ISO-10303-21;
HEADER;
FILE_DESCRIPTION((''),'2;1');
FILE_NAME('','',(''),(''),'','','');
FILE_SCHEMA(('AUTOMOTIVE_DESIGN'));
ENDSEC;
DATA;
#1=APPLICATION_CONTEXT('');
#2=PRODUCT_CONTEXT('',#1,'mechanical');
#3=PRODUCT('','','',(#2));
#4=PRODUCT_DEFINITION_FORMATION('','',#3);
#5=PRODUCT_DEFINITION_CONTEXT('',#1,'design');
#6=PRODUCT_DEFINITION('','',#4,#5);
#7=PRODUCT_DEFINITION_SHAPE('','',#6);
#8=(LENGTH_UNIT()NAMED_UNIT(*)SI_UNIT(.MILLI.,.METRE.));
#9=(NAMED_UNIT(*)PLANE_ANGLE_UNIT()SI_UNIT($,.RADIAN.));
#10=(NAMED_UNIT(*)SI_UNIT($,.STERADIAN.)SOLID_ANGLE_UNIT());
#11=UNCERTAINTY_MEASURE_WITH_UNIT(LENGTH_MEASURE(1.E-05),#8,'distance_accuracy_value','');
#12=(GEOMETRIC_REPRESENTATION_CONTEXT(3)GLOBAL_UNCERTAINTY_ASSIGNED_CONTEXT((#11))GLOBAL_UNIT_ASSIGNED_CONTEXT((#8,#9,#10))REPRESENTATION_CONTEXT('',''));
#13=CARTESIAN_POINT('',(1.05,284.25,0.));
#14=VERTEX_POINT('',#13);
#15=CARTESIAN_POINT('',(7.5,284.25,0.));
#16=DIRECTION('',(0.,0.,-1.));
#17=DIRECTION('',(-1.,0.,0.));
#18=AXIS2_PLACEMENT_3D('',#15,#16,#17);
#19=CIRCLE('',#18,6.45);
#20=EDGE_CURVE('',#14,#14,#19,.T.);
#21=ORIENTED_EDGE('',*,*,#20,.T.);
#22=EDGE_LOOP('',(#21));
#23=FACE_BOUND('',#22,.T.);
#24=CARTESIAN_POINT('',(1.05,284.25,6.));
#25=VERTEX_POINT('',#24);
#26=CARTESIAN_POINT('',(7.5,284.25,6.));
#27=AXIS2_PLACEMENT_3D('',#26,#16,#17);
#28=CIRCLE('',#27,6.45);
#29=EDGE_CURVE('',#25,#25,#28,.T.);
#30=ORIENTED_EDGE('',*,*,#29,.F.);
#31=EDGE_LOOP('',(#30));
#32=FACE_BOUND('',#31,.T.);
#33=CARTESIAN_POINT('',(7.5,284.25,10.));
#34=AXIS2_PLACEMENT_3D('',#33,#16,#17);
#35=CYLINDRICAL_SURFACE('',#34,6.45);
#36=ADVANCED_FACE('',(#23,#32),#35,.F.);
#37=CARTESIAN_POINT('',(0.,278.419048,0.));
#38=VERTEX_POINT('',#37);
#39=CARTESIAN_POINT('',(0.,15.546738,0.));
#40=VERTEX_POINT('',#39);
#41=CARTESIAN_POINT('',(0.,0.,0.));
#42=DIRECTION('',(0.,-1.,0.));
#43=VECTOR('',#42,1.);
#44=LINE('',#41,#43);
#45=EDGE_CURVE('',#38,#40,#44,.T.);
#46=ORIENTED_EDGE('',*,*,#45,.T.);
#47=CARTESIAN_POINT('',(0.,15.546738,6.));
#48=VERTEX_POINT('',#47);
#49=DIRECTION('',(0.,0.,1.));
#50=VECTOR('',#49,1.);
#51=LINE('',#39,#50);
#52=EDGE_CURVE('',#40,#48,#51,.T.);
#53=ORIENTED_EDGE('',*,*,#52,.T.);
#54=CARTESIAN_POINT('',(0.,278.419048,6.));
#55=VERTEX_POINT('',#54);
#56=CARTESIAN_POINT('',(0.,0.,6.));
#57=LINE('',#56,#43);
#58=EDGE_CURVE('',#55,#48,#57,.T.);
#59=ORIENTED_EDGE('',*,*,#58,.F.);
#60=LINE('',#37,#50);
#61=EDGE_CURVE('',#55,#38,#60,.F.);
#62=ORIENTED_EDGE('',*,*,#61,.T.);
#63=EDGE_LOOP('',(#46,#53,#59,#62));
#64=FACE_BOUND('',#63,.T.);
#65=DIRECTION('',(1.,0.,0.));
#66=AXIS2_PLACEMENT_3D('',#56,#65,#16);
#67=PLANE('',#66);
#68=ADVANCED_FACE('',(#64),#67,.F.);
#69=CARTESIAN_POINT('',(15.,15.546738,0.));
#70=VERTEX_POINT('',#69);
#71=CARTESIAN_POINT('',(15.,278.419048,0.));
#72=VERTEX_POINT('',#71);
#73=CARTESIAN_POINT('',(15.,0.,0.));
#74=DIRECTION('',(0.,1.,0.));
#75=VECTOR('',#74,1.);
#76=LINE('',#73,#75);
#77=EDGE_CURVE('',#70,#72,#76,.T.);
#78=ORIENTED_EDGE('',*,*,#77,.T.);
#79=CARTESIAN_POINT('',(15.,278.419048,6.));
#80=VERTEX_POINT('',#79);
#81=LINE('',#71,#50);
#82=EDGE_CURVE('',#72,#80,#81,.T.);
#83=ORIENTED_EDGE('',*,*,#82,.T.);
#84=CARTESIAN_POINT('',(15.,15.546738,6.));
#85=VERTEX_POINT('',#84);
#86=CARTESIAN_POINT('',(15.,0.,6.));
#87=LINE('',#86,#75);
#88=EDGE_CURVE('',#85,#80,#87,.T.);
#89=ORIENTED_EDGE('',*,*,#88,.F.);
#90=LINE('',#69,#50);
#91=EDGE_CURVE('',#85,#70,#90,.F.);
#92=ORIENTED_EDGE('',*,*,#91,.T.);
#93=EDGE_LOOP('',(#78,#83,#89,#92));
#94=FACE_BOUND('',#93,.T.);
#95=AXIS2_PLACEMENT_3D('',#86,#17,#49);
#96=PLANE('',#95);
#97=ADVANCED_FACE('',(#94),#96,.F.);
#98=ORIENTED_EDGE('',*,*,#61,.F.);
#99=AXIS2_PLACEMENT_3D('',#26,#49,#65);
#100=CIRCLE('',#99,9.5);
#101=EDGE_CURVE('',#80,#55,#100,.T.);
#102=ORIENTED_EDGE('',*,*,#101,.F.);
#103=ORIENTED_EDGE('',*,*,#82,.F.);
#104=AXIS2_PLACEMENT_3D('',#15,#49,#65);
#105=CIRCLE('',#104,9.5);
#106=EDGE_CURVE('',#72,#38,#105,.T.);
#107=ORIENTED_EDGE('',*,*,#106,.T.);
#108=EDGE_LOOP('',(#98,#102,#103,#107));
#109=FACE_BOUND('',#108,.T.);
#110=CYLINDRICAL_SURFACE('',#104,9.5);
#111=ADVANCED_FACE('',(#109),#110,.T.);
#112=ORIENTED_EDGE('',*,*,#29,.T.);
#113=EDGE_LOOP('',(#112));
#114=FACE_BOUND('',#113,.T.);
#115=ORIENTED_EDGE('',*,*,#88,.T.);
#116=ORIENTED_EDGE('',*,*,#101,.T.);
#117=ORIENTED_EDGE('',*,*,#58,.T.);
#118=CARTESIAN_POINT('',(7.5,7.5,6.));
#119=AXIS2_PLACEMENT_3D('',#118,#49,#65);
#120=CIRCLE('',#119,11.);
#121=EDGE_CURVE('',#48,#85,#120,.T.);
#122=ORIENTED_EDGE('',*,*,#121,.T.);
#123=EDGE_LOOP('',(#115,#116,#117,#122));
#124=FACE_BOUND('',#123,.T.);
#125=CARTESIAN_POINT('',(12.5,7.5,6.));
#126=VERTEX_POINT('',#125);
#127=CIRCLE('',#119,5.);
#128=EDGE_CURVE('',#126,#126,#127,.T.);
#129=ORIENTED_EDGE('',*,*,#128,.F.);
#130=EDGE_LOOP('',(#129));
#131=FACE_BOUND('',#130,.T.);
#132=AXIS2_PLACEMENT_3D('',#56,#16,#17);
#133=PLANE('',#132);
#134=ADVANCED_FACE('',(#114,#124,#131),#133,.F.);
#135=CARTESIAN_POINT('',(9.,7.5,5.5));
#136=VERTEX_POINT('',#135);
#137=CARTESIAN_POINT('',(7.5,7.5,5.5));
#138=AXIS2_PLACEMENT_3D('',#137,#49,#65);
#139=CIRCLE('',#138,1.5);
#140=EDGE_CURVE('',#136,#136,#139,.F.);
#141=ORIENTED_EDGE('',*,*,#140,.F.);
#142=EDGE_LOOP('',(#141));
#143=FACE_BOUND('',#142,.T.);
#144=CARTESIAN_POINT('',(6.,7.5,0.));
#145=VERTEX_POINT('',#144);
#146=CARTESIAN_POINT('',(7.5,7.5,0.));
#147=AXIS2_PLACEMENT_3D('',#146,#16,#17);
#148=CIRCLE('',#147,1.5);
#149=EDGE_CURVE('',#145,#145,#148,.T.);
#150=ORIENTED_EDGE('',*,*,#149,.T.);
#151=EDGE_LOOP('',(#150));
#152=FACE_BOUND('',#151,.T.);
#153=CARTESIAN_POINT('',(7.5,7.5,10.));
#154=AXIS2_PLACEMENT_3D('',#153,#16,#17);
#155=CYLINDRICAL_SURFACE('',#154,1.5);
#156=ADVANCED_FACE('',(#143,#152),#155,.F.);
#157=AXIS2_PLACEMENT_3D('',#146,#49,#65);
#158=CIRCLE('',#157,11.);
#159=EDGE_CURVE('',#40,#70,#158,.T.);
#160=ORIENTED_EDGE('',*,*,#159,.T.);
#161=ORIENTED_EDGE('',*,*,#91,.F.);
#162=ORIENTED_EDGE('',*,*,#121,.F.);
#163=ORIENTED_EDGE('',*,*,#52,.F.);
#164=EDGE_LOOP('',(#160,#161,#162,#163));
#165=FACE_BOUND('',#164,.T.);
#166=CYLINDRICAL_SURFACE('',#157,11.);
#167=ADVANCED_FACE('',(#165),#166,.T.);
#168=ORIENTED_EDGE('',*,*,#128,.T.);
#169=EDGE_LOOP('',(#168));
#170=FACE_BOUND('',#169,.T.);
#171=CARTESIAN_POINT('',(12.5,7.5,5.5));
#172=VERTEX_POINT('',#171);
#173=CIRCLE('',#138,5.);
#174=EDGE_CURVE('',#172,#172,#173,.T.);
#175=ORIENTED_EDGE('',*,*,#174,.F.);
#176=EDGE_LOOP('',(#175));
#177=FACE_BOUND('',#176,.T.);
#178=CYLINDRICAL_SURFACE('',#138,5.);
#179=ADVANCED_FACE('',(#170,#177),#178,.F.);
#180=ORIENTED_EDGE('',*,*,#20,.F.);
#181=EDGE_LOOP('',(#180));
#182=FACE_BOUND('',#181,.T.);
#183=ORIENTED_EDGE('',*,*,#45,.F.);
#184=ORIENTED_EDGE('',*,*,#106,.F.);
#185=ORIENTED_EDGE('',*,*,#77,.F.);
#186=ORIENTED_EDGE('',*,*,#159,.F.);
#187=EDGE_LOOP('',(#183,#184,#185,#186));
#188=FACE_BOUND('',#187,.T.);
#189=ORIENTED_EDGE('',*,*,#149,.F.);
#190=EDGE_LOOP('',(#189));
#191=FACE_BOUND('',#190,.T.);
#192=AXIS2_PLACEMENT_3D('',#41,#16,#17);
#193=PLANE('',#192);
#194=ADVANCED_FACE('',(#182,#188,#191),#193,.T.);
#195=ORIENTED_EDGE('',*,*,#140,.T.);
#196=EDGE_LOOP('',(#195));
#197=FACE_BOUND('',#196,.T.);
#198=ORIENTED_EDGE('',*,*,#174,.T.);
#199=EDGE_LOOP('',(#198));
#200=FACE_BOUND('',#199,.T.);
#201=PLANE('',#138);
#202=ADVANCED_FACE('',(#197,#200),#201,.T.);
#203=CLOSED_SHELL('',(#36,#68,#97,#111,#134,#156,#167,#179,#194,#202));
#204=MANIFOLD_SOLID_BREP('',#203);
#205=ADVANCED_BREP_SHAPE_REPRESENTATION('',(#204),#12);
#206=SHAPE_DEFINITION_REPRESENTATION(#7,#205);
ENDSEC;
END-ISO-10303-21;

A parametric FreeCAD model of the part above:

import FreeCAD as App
import Part
import Sketcher

V = App.Vector
Q = App.Units.Quantity

doc = App.newDocument("Part")
body = doc.addObject("PartDesign::Body", "Body")

# Sketch on XY plane
sketch1 = body.newObject("Sketcher::SketchObject", "Sketch")
sketch1.AttachmentSupport = (doc.getObject("XY_Plane"), [""])
sketch1.MapMode = "FlatFace"
sketch1.addGeometry([
    Part.LineSegment(V(0, 290, 0), V(0, 0, 0)),
    Part.LineSegment(V(0, 0, 0), V(15, 0, 0)),
    Part.LineSegment(V(15, 0, 0), V(15, 290, 0)),
    Part.LineSegment(V(15, 290, 0), V(0, 290, 0)),
], False)
sketch1.addConstraint([
    Sketcher.Constraint("Coincident", 0, 2, 1, 1),
    Sketcher.Constraint("Coincident", 1, 2, 2, 1),
    Sketcher.Constraint("Coincident", 2, 2, 3, 1),
    Sketcher.Constraint("Coincident", 3, 2, 0, 1),
    Sketcher.Constraint("Vertical", 0),
    Sketcher.Constraint("Horizontal", 1),
    Sketcher.Constraint("Vertical", 2),
    Sketcher.Constraint("Horizontal", 3),
    Sketcher.Constraint("Coincident", 0, 2, -1, 1),
    Sketcher.Constraint("DistanceX", 1, 1, 1, 2, Q("15 mm")),
    Sketcher.Constraint("DistanceY", 0, 2, 0, 1, Q("290 mm")),
])
pad1 = body.newObject("PartDesign::Pad", "Pad")
pad1.Profile = sketch1
pad1.Length = 6

# Sketch on XY plane
sketch2 = body.newObject("Sketcher::SketchObject", "Sketch001")
sketch2.AttachmentSupport = (doc.getObject("XY_Plane"), [""])
sketch2.MapMode = "FlatFace"
sketch2.AttachmentOffset = App.Placement(V(0, 0, 6), App.Rotation())
sketch2.addGeometry([
    Part.Circle(V(8, 8, 0), V(0, 0, 1), 11),
    Part.Circle(V(8, 284, 0), V(0, 0, 1), 10),
], False)
sketch2.addConstraint([
    Sketcher.Constraint("Vertical", 0, 3, 1, 3),
    Sketcher.Constraint("Diameter", 0, Q("22 mm")),
    Sketcher.Constraint("Diameter", 1, Q("19 mm")),
    Sketcher.Constraint("DistanceX", -1, 1, 0, 3, Q("7.5 mm")),
    Sketcher.Constraint("DistanceY", -1, 1, 0, 3, Q("7.5 mm")),
    Sketcher.Constraint("DistanceY", -1, 1, 1, 3, Q("284.25 mm")),
])
pad2 = body.newObject("PartDesign::Pad", "Pad001")
pad2.Profile = sketch2
pad2.Length = 6
pad2.Reversed = True

# Sketch on XY plane
sketch3 = body.newObject("Sketcher::SketchObject", "Sketch002")
sketch3.AttachmentSupport = (doc.getObject("XY_Plane"), [""])
sketch3.MapMode = "FlatFace"
sketch3.addGeometry([
    Part.Circle(V(7.5, 7.5, 0), V(0, 0, 1), 1.5),
    Part.Circle(V(7.5, 284.2, 0), V(0, 0, 1), 6.5),
], False)
sketch3.addConstraint([
    Sketcher.Constraint("Vertical", 0, 3, 1, 3),
    Sketcher.Constraint("Diameter", 0, Q("3 mm")),
    Sketcher.Constraint("Diameter", 1, Q("12.9 mm")),
    Sketcher.Constraint("DistanceX", -1, 1, 0, 3, Q("7.5 mm")),
    Sketcher.Constraint("DistanceY", -1, 1, 0, 3, Q("7.5 mm")),
    Sketcher.Constraint("DistanceY", -1, 1, 1, 3, Q("284.25 mm")),
])
pocket1 = body.newObject("PartDesign::Pocket", "Pocket")
pocket1.Profile = sketch3
pocket1.Length = 10
pocket1.Reversed = True

# Sketch on XY plane
sketch4 = body.newObject("Sketcher::SketchObject", "Sketch003")
sketch4.AttachmentSupport = (doc.getObject("XY_Plane"), [""])
sketch4.MapMode = "FlatFace"
sketch4.AttachmentOffset = App.Placement(V(0, 0, 6), App.Rotation())
sketch4.addGeometry(Part.Circle(V(8, 8, 0), V(0, 0, 1), 5), False)
sketch4.addConstraint([
    Sketcher.Constraint("Diameter", 0, Q("10 mm")),
    Sketcher.Constraint("DistanceX", -1, 1, 0, 3, Q("7.5 mm")),
    Sketcher.Constraint("DistanceY", -1, 1, 0, 3, Q("7.5 mm")),
])
pocket2 = body.newObject("PartDesign::Pocket", "Pocket001")
pocket2.Profile = sketch4
pocket2.Length = 0.5

doc.recompute()
